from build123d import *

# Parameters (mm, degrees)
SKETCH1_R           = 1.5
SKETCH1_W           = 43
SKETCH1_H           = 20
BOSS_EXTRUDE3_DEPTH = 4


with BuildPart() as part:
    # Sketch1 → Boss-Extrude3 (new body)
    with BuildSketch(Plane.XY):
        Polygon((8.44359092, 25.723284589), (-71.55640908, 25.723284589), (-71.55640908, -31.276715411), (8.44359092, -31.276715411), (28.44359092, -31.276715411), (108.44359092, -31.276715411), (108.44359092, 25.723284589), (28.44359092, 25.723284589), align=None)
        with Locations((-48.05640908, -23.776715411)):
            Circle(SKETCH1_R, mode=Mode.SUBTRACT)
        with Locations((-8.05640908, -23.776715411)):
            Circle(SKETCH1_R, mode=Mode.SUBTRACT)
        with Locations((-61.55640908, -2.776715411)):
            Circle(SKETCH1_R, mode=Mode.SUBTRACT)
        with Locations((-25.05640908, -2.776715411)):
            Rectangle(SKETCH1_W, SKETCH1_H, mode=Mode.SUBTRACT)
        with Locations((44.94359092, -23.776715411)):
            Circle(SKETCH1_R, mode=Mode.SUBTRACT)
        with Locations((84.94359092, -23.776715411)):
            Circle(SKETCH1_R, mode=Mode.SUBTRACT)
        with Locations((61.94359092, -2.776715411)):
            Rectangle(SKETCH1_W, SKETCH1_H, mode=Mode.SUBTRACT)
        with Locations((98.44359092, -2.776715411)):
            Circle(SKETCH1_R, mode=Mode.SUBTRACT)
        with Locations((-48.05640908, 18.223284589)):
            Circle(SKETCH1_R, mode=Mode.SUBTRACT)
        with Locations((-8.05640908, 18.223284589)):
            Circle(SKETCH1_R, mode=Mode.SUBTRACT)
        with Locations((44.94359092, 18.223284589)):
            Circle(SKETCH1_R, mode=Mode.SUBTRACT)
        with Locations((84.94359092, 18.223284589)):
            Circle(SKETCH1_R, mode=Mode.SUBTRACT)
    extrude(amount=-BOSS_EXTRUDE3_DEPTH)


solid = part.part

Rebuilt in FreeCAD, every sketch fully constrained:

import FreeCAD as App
import Part
import Sketcher
from FreeCAD import Vector
Q = App.Units.Quantity

doc = App.newDocument("Part")
body = doc.addObject("PartDesign::Body", "Body")

sketch1 = body.newObject("Sketcher::SketchObject", "Sketch")
sketch1.AttachmentSupport = (doc.getObject("XY_Plane"), [""])
sketch1.MapMode = "FlatFace"
sketch1.addGeometry([
    Part.LineSegment(Vector(-71.556409, 25.723285, 0), Vector(-71.556409, -31.276715, 0)),
    Part.LineSegment(Vector(-71.556409, -31.276715, 0), Vector(108.443591, -31.276715, 0)),
    Part.LineSegment(Vector(108.443591, -31.276715, 0), Vector(108.443591, 25.723285, 0)),
    Part.LineSegment(Vector(108.443591, 25.723285, 0), Vector(-71.556409, 25.723285, 0)),
    Part.Circle(Vector(-48.056409, -23.776715, 0), Vector(0, 0, 1), 1.5),
    Part.Circle(Vector(-8.056409, -23.776715, 0), Vector(0, 0, 1), 1.5),
    Part.Circle(Vector(44.943591, -23.776715, 0), Vector(0, 0, 1), 1.5),
    Part.Circle(Vector(84.943591, -23.776715, 0), Vector(0, 0, 1), 1.5),
    Part.Circle(Vector(-61.556409, -2.776715, 0), Vector(0, 0, 1), 1.5),
    Part.LineSegment(Vector(-3.556409, -12.776715, 0), Vector(-46.556409, -12.776715, 0)),
    Part.LineSegment(Vector(-46.556409, -12.776715, 0), Vector(-46.556409, 7.223285, 0)),
    Part.LineSegment(Vector(-46.556409, 7.223285, 0), Vector(-3.556409, 7.223285, 0)),
    Part.LineSegment(Vector(-3.556409, 7.223285, 0), Vector(-3.556409, -12.776715, 0)),
    Part.Circle(Vector(-48.056409, 18.223285, 0), Vector(0, 0, 1), 1.5),
    Part.Circle(Vector(-8.056409, 18.223285, 0), Vector(0, 0, 1), 1.5),
    Part.LineSegment(Vector(83.443591, -12.776715, 0), Vector(40.443591, -12.776715, 0)),
    Part.LineSegment(Vector(40.443591, -12.776715, 0), Vector(40.443591, 7.223285, 0)),
    Part.LineSegment(Vector(40.443591, 7.223285, 0), Vector(83.443591, 7.223285, 0)),
    Part.LineSegment(Vector(83.443591, 7.223285, 0), Vector(83.443591, -12.776715, 0)),
    Part.Circle(Vector(98.443591, -2.776715, 0), Vector(0, 0, 1), 1.5),
    Part.Circle(Vector(44.943591, 18.223285, 0), Vector(0, 0, 1), 1.5),
    Part.Circle(Vector(84.943591, 18.223285, 0), Vector(0, 0, 1), 1.5),
], False)
sketch1.addConstraint([
    Sketcher.Constraint("Coincident", 0, 2, 1, 1),
    Sketcher.Constraint("Coincident", 1, 2, 2, 1),
    Sketcher.Constraint("Coincident", 2, 2, 3, 1),
    Sketcher.Constraint("Coincident", 3, 2, 0, 1),
    Sketcher.Constraint("Coincident", 9, 2, 10, 1),
    Sketcher.Constraint("Coincident", 10, 2, 11, 1),
    Sketcher.Constraint("Coincident", 11, 2, 12, 1),
    Sketcher.Constraint("Coincident", 12, 2, 9, 1),
    Sketcher.Constraint("Coincident", 15, 2, 16, 1),
    Sketcher.Constraint("Coincident", 16, 2, 17, 1),
    Sketcher.Constraint("Coincident", 17, 2, 18, 1),
    Sketcher.Constraint("Coincident", 18, 2, 15, 1),
    Sketcher.Constraint("Vertical", 0),
    Sketcher.Constraint("Horizontal", 1),
    Sketcher.Constraint("Vertical", 2),
    Sketcher.Constraint("Horizontal", 3),
    Sketcher.Constraint("Horizontal", 9),
    Sketcher.Constraint("Vertical", 10),
    Sketcher.Constraint("Horizontal", 11),
    Sketcher.Constraint("Vertical", 12),
    Sketcher.Constraint("Horizontal", 15),
    Sketcher.Constraint("Vertical", 16),
    Sketcher.Constraint("Horizontal", 17),
    Sketcher.Constraint("Vertical", 18),
    Sketcher.Constraint("Equal", 4, 5),
    Sketcher.Constraint("Equal", 5, 6),
    Sketcher.Constraint("Equal", 6, 7),
    Sketcher.Constraint("Equal", 7, 8),
    Sketcher.Constraint("Equal", 8, 13),
    Sketcher.Constraint("Equal", 13, 14),
    Sketcher.Constraint("Equal", 14, 19),
    Sketcher.Constraint("Equal", 19, 20),
    Sketcher.Constraint("Equal", 20, 21),
    Sketcher.Constraint("Horizontal", 4, 3, 5, 3),
    Sketcher.Constraint("Horizontal", 5, 3, 6, 3),
    Sketcher.Constraint("Horizontal", 6, 3, 7, 3),
    Sketcher.Constraint("Horizontal", 13, 3, 14, 3),
    Sketcher.Constraint("Horizontal", 8, 3, 19, 3),
    Sketcher.Constraint("Horizontal", 14, 3, 20, 3),
    Sketcher.Constraint("Horizontal", 20, 3, 21, 3),
    Sketcher.Constraint("Horizontal", 12, 2, 15, 2),
    Sketcher.Constraint("Horizontal", 11, 2, 16, 2),
    Sketcher.Constraint("Vertical", 4, 3, 13, 3),
    Sketcher.Constraint("Vertical", 5, 3, 14, 3),
    Sketcher.Constraint("Vertical", 6, 3, 20, 3),
    Sketcher.Constraint("Vertical", 7, 3, 21, 3),
    Sketcher.Constraint("Equal", 11, 15),
    Sketcher.Constraint("Diameter", 4, Q("3 mm")),
    Sketcher.Constraint("DistanceX", 1, 1, 1, 2, Q("180 mm")),
    Sketcher.Constraint("DistanceX", 9, 2, 9, 1, Q("43 mm")),
    Sketcher.Constraint("DistanceY", 0, 2, 0, 1, Q("57 mm")),
    Sketcher.Constraint("DistanceY", 10, 1, 10, 2, Q("20 mm")),
    Sketcher.Constraint("DistanceX", 4, 3, 5, 3, Q("40 mm")),
    Sketcher.Constraint("DistanceX", 5, 3, 6, 3, Q("53 mm")),
    Sketcher.Constraint("DistanceX", 6, 3, 7, 3, Q("40 mm")),
    Sketcher.Constraint("DistanceY", 4, 3, 8, 3, Q("21 mm")),
    Sketcher.Constraint("DistanceY", 8, 3, 13, 3, Q("21 mm")),
    Sketcher.Constraint("DistanceX", 0, 2, 8, 3, Q("10 mm")),
    Sketcher.Constraint("DistanceX", 19, 3, 1, 2, Q("10 mm")),
    Sketcher.Constraint("DistanceY", 4, 3, 9, 2, Q("11 mm")),
    Sketcher.Constraint("DistanceX", 8, 3, 9, 2, Q("15 mm")),
    Sketcher.Constraint("DistanceX", 12, 2, 15, 2, Q("44 mm")),
    Sketcher.Constraint("DistanceX", 8, 3, 4, 3, Q("13.5 mm")),
    Sketcher.Constraint("DistanceY", 0, 2, 4, 3, Q("7.5 mm")),
    Sketcher.Constraint("DistanceX", 4, 3, -1, 1, Q("48.056409 mm")),
    Sketcher.Constraint("DistanceY", 4, 3, -1, 1, Q("23.776715 mm")),
])
pad1 = body.newObject("PartDesign::Pad", "Pad")
pad1.Profile = sketch1
pad1.Length = 4
pad1.Reversed = True

doc.recompute()
